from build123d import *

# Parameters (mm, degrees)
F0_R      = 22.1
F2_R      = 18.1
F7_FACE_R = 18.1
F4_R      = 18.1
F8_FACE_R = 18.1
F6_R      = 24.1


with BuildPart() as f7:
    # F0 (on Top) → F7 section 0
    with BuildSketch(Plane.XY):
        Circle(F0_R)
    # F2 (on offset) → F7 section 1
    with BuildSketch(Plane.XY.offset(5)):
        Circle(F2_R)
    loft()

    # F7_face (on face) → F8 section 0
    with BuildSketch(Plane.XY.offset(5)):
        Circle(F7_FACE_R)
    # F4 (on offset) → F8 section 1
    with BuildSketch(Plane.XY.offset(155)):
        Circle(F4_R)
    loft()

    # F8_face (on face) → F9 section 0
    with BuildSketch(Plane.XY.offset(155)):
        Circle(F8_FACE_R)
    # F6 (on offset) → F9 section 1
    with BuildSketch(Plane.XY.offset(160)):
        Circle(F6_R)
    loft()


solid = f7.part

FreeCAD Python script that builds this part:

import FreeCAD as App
import Part
import Sketcher
Q = App.Units.Quantity

doc = App.newDocument("Part")
body = doc.addObject("PartDesign::Body", "Body")

sketch1 = body.newObject("Sketcher::SketchObject", "Sketch")
sketch1.AttachmentSupport = (doc.getObject("XY_Plane"), [""])
sketch1.MapMode = "FlatFace"
sketch1.addGeometry(Part.Circle(App.Vector(0, 0, 0), App.Vector(0, 0, 1), 22.1), False)
sketch1.addConstraint([
    Sketcher.Constraint("Coincident", 0, 3, -1, 1),
    Sketcher.Constraint("Diameter", 0, Q("44.2 mm")),
])

sketch2 = body.newObject("Sketcher::SketchObject", "Sketch001")
sketch2.AttachmentSupport = (doc.getObject("XY_Plane"), [""])
sketch2.MapMode = "FlatFace"
sketch2.AttachmentOffset = App.Placement(App.Vector(0, 0, 5), App.Rotation())
sketch2.addGeometry(Part.Circle(App.Vector(0, 0, 0), App.Vector(0, 0, 1), 18.1), False)
sketch2.addConstraint([
    Sketcher.Constraint("Coincident", 0, 3, -1, 1),
    Sketcher.Constraint("Diameter", 0, Q("36.2 mm")),
])

additiveloft = body.newObject("PartDesign::AdditiveLoft", "AdditiveLoft")
additiveloft.Profile = sketch1
additiveloft.Sections = [sketch2]

sketch3 = body.newObject("Sketcher::SketchObject", "Sketch002")
sketch3.AttachmentSupport = (doc.getObject("XY_Plane"), [""])
sketch3.MapMode = "FlatFace"
sketch3.AttachmentOffset = App.Placement(App.Vector(0, 0, 5), App.Rotation())
sketch3.addGeometry(Part.Circle(App.Vector(0, 0, 0), App.Vector(0, 0, 1), 18.1), False)
sketch3.addConstraint([
    Sketcher.Constraint("Coincident", 0, 3, -1, 1),
    Sketcher.Constraint("Diameter", 0, Q("36.2 mm")),
])

sketch4 = body.newObject("Sketcher::SketchObject", "Sketch003")
sketch4.AttachmentSupport = (doc.getObject("XY_Plane"), [""])
sketch4.MapMode = "FlatFace"
sketch4.AttachmentOffset = App.Placement(App.Vector(0, 0, 155), App.Rotation())
sketch4.addGeometry(Part.Circle(App.Vector(0, 0, 0), App.Vector(0, 0, 1), 18.1), False)
sketch4.addConstraint([
    Sketcher.Constraint("Coincident", 0, 3, -1, 1),
    Sketcher.Constraint("Diameter", 0, Q("36.2 mm")),
])

additiveloft2 = body.newObject("PartDesign::AdditiveLoft", "AdditiveLoft001")
additiveloft2.Profile = sketch3
additiveloft2.Sections = [sketch4]

sketch5 = body.newObject("Sketcher::SketchObject", "Sketch004")
sketch5.AttachmentSupport = (doc.getObject("XY_Plane"), [""])
sketch5.MapMode = "FlatFace"
sketch5.AttachmentOffset = App.Placement(App.Vector(0, 0, 155), App.Rotation())
sketch5.addGeometry(Part.Circle(App.Vector(0, 0, 0), App.Vector(0, 0, 1), 18.1), False)
sketch5.addConstraint([
    Sketcher.Constraint("Coincident", 0, 3, -1, 1),
    Sketcher.Constraint("Diameter", 0, Q("36.2 mm")),
])

sketch6 = body.newObject("Sketcher::SketchObject", "Sketch005")
sketch6.AttachmentSupport = (doc.getObject("XY_Plane"), [""])
sketch6.MapMode = "FlatFace"
sketch6.AttachmentOffset = App.Placement(App.Vector(0, 0, 160), App.Rotation())
sketch6.addGeometry(Part.Circle(App.Vector(0, 0, 0), App.Vector(0, 0, 1), 24.1), False)
sketch6.addConstraint([
    Sketcher.Constraint("Coincident", 0, 3, -1, 1),
    Sketcher.Constraint("Diameter", 0, Q("48.2 mm")),
])

additiveloft3 = body.newObject("PartDesign::AdditiveLoft", "AdditiveLoft002")
additiveloft3.Profile = sketch5
additiveloft3.Sections = [sketch6]

doc.recompute()
